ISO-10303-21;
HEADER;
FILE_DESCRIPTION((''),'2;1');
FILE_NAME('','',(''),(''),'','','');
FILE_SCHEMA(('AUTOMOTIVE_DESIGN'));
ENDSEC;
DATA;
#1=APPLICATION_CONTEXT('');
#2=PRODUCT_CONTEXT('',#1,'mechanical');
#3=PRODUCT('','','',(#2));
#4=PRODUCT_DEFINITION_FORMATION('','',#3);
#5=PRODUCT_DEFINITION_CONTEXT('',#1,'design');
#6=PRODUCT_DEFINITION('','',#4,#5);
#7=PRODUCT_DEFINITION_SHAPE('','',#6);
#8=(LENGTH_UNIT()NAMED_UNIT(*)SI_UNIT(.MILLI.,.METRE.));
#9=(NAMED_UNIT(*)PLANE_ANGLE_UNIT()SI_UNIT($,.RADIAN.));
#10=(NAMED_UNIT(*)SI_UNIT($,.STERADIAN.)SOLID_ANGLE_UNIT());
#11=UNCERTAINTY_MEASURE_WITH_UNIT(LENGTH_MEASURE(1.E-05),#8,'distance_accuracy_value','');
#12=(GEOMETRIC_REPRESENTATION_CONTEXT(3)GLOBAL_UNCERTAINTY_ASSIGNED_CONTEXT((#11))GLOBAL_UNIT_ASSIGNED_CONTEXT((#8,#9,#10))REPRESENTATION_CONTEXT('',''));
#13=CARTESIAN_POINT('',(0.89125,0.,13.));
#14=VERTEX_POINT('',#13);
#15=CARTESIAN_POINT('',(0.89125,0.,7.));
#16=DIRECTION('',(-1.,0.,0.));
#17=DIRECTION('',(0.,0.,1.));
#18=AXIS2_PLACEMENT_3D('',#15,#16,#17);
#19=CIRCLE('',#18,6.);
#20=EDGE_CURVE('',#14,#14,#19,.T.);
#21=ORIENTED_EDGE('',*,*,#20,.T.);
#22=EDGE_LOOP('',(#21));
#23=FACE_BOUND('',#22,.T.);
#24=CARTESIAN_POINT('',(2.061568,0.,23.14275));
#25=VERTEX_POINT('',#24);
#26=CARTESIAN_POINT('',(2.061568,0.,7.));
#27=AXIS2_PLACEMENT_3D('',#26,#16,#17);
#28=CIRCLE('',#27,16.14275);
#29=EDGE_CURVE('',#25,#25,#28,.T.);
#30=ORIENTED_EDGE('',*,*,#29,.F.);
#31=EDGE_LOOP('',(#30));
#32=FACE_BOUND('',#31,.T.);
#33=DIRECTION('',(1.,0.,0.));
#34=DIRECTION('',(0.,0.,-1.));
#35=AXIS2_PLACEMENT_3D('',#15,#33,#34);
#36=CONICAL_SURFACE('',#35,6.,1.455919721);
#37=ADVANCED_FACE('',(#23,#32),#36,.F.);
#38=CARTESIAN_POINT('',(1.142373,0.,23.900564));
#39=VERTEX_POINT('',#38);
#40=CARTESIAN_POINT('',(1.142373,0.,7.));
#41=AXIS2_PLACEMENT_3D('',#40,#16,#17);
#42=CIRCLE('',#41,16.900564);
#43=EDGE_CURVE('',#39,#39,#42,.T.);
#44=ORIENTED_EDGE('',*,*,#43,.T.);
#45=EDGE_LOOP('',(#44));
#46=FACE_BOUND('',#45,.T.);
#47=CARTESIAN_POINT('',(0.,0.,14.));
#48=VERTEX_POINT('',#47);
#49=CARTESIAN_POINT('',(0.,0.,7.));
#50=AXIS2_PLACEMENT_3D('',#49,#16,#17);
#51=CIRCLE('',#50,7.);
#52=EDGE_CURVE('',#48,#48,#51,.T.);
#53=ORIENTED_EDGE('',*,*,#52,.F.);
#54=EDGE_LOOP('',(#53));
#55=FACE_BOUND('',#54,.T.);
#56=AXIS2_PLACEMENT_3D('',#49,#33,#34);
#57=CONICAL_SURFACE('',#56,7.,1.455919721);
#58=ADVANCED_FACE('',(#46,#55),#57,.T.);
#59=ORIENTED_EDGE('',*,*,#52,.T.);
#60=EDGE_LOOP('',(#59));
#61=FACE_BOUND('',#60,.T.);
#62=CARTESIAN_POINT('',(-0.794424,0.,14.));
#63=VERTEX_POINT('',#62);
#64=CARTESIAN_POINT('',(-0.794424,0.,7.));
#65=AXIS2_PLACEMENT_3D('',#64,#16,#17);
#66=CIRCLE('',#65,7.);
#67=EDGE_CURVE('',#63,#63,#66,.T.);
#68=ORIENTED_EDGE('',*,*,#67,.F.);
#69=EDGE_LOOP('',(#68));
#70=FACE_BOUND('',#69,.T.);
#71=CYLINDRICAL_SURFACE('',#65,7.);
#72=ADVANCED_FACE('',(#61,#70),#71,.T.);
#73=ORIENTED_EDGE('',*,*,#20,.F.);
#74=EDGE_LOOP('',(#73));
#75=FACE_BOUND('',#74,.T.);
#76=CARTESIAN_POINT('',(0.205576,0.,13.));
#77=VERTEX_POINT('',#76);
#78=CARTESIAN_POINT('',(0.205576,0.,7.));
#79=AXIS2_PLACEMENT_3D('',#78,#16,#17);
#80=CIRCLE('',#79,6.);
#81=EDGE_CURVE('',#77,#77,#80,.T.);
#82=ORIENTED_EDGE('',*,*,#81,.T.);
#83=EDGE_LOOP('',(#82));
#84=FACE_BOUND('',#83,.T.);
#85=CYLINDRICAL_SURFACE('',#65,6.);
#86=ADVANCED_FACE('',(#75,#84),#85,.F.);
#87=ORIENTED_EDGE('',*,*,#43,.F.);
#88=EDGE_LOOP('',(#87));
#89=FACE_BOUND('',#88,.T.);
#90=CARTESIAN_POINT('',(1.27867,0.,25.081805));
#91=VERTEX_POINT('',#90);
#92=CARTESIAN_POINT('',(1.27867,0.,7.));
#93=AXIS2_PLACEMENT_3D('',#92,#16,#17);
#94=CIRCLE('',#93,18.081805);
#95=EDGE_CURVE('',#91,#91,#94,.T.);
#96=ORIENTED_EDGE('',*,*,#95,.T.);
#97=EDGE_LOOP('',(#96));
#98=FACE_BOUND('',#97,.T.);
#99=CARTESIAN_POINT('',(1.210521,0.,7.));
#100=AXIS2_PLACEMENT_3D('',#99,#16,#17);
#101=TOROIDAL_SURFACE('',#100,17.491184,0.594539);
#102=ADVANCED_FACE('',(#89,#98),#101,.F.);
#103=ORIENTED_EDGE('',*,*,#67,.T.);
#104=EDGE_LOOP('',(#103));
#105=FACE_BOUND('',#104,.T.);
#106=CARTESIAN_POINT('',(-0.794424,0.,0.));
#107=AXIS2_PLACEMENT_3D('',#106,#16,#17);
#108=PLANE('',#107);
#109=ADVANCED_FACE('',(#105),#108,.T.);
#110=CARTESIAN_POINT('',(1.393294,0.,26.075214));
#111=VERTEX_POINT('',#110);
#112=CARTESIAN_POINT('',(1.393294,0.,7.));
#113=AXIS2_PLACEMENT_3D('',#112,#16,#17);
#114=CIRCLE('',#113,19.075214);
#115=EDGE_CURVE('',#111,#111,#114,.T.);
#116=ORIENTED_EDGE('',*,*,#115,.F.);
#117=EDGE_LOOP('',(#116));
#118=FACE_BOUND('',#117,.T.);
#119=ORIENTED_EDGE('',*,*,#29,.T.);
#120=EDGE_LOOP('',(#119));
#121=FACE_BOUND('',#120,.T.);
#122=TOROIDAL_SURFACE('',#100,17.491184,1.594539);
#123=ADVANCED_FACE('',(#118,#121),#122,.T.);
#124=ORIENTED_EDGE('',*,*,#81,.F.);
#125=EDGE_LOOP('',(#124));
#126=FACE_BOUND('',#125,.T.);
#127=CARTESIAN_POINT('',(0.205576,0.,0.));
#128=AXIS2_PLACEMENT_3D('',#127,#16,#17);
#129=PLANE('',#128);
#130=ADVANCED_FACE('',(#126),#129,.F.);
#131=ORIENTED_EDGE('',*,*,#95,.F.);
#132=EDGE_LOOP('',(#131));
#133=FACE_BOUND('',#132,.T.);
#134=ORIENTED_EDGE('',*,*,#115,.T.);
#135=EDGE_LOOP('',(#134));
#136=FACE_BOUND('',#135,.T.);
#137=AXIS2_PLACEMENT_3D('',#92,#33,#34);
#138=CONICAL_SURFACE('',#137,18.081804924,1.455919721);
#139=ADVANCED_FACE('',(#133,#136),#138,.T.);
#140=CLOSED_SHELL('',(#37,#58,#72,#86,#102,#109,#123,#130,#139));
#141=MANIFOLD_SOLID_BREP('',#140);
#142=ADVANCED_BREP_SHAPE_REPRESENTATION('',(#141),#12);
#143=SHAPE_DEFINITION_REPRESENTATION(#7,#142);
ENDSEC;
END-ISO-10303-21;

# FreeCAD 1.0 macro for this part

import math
import FreeCAD as App
import Part
import Sketcher

V = App.Vector
Q = App.Units.Quantity

doc = App.newDocument("Part")
body = doc.addObject("PartDesign::Body", "Body")

# Sketch on XZ plane
sketch1 = doc.addObject("Sketcher::SketchObject", "Sketch")
body.addObject(sketch1)
sketch1.AttachmentSupport = (doc.XZ_Plane, [""])
sketch1.MapMode = "FlatFace"
sketch1.addGeometry(Part.LineSegment(V(-0.8, 0, 0), V(-0.8, 7, 0)), False)
sketch1.addGeometry(Part.LineSegment(V(-0.8, 7, 0), V(0.2, 7, 0)), False)
sketch1.addGeometry(Part.LineSegment(V(0.2, 7, 0), V(0.2, 1, 0)), False)
sketch1.addGeometry(Part.LineSegment(V(0.2, 1, 0), V(0.9, 1, 0)), False)
sketch1.addGeometry(Part.LineSegment(V(0.9, 1, 0), V(2.1, -9.1, 0)), False)
sketch1.addGeometry(Part.ArcOfCircle(Part.Circle(V(1.2, -10.5, 0), V(0, 0, 1), 1.6), math.radians(-83), math.radians(58)), False)
sketch1.addGeometry(Part.LineSegment(V(1.4, -12.1, 0), V(1.3, -11.1, 0)), False)
sketch1.addGeometry(Part.ArcOfCircle(Part.Circle(V(1.2, -10.5, 0), V(0, 0, 1), 0.6), math.radians(-83), math.radians(97)), False)
sketch1.addGeometry(Part.LineSegment(V(1.1, -9.9, 0), V(0, 0, 0)), False)
sketch1.addGeometry(Part.LineSegment(V(0, 0, 0), V(-0.8, 0, 0)), False)
sketch1.addGeometry(Part.LineSegment(V(-0.8, 7, 0), V(2.1, 7, 0)), True)  # axis
sketch1.addConstraint(Sketcher.Constraint("Coincident", 0, 2, 1, 1))
sketch1.addConstraint(Sketcher.Constraint("Coincident", 1, 2, 2, 1))
sketch1.addConstraint(Sketcher.Constraint("Coincident", 2, 2, 3, 1))
sketch1.addConstraint(Sketcher.Constraint("Coincident", 3, 2, 4, 1))
sketch1.addConstraint(Sketcher.Constraint("Coincident", 4, 2, 5, 2))
sketch1.addConstraint(Sketcher.Constraint("Coincident", 5, 1, 6, 1))
sketch1.addConstraint(Sketcher.Constraint("Coincident", 6, 2, 7, 1))
sketch1.addConstraint(Sketcher.Constraint("Coincident", 7, 2, 8, 1))
sketch1.addConstraint(Sketcher.Constraint("Coincident", 8, 2, 9, 1))
sketch1.addConstraint(Sketcher.Constraint("Coincident", 9, 2, 0, 1))
sketch1.addConstraint(Sketcher.Constraint("Vertical", 0))
sketch1.addConstraint(Sketcher.Constraint("Horizontal", 1))
sketch1.addConstraint(Sketcher.Constraint("Vertical", 2))
sketch1.addConstraint(Sketcher.Constraint("Horizontal", 3))
sketch1.addConstraint(Sketcher.Constraint("Horizontal", 9))
sketch1.addConstraint(Sketcher.Constraint("Horizontal", 10))
sketch1.addConstraint(Sketcher.Constraint("Coincident", 8, 2, -1, 1))
sketch1.addConstraint(Sketcher.Constraint("Coincident", 7, 3, 5, 3))
sketch1.addConstraint(Sketcher.Constraint("Coincident", 10, 1, 0, 2))
sketch1.addConstraint(Sketcher.Constraint("Parallel", 4, 6))
sketch1.addConstraint(Sketcher.Constraint("Parallel", 6, 8))
sketch1.addConstraint(Sketcher.Constraint("Vertical", 4, 2, 10, 2))
sketch1.addConstraint(Sketcher.Constraint("DistanceX", 1, 1, 1, 2, Q("1 mm")))
sketch1.addConstraint(Sketcher.Constraint("DistanceY", 0, 1, 0, 2, Q("7 mm")))
sketch1.addConstraint(Sketcher.Constraint("DistanceY", 2, 2, 2, 1, Q("6 mm")))
sketch1.addConstraint(Sketcher.Constraint("Distance", 6, Q("1 mm")))
sketch1.addConstraint(Sketcher.Constraint("Radius", 5, Q("1.594539 mm")))
sketch1.addConstraint(Sketcher.Constraint("DistanceX", 10, 1, 10, 2, Q("2.855992 mm")))
sketch1.addConstraint(Sketcher.Constraint("DistanceX", 3, 1, 3, 2, Q("0.685675 mm")))
sketch1.addConstraint(Sketcher.Constraint("DistanceX", 9, 2, 9, 1, Q("0.794424 mm")))
sketch1.addConstraint(Sketcher.Constraint("DistanceX", -1, 1, 5, 3, Q("1.210521 mm")))
sketch1.addConstraint(Sketcher.Constraint("DistanceY", 4, 2, -1, 1, Q("9.14275 mm")))
sketch1.addConstraint(Sketcher.Constraint("DistanceX", -1, 1, 6, 2, Q("1.27867 mm")))
revolution = doc.addObject("PartDesign::Revolution", "Revolution")
body.addObject(revolution)
revolution.Profile = sketch1
revolution.ReferenceAxis = (sketch1, ["Axis0"])
revolution.Angle = 360

doc.recompute()
